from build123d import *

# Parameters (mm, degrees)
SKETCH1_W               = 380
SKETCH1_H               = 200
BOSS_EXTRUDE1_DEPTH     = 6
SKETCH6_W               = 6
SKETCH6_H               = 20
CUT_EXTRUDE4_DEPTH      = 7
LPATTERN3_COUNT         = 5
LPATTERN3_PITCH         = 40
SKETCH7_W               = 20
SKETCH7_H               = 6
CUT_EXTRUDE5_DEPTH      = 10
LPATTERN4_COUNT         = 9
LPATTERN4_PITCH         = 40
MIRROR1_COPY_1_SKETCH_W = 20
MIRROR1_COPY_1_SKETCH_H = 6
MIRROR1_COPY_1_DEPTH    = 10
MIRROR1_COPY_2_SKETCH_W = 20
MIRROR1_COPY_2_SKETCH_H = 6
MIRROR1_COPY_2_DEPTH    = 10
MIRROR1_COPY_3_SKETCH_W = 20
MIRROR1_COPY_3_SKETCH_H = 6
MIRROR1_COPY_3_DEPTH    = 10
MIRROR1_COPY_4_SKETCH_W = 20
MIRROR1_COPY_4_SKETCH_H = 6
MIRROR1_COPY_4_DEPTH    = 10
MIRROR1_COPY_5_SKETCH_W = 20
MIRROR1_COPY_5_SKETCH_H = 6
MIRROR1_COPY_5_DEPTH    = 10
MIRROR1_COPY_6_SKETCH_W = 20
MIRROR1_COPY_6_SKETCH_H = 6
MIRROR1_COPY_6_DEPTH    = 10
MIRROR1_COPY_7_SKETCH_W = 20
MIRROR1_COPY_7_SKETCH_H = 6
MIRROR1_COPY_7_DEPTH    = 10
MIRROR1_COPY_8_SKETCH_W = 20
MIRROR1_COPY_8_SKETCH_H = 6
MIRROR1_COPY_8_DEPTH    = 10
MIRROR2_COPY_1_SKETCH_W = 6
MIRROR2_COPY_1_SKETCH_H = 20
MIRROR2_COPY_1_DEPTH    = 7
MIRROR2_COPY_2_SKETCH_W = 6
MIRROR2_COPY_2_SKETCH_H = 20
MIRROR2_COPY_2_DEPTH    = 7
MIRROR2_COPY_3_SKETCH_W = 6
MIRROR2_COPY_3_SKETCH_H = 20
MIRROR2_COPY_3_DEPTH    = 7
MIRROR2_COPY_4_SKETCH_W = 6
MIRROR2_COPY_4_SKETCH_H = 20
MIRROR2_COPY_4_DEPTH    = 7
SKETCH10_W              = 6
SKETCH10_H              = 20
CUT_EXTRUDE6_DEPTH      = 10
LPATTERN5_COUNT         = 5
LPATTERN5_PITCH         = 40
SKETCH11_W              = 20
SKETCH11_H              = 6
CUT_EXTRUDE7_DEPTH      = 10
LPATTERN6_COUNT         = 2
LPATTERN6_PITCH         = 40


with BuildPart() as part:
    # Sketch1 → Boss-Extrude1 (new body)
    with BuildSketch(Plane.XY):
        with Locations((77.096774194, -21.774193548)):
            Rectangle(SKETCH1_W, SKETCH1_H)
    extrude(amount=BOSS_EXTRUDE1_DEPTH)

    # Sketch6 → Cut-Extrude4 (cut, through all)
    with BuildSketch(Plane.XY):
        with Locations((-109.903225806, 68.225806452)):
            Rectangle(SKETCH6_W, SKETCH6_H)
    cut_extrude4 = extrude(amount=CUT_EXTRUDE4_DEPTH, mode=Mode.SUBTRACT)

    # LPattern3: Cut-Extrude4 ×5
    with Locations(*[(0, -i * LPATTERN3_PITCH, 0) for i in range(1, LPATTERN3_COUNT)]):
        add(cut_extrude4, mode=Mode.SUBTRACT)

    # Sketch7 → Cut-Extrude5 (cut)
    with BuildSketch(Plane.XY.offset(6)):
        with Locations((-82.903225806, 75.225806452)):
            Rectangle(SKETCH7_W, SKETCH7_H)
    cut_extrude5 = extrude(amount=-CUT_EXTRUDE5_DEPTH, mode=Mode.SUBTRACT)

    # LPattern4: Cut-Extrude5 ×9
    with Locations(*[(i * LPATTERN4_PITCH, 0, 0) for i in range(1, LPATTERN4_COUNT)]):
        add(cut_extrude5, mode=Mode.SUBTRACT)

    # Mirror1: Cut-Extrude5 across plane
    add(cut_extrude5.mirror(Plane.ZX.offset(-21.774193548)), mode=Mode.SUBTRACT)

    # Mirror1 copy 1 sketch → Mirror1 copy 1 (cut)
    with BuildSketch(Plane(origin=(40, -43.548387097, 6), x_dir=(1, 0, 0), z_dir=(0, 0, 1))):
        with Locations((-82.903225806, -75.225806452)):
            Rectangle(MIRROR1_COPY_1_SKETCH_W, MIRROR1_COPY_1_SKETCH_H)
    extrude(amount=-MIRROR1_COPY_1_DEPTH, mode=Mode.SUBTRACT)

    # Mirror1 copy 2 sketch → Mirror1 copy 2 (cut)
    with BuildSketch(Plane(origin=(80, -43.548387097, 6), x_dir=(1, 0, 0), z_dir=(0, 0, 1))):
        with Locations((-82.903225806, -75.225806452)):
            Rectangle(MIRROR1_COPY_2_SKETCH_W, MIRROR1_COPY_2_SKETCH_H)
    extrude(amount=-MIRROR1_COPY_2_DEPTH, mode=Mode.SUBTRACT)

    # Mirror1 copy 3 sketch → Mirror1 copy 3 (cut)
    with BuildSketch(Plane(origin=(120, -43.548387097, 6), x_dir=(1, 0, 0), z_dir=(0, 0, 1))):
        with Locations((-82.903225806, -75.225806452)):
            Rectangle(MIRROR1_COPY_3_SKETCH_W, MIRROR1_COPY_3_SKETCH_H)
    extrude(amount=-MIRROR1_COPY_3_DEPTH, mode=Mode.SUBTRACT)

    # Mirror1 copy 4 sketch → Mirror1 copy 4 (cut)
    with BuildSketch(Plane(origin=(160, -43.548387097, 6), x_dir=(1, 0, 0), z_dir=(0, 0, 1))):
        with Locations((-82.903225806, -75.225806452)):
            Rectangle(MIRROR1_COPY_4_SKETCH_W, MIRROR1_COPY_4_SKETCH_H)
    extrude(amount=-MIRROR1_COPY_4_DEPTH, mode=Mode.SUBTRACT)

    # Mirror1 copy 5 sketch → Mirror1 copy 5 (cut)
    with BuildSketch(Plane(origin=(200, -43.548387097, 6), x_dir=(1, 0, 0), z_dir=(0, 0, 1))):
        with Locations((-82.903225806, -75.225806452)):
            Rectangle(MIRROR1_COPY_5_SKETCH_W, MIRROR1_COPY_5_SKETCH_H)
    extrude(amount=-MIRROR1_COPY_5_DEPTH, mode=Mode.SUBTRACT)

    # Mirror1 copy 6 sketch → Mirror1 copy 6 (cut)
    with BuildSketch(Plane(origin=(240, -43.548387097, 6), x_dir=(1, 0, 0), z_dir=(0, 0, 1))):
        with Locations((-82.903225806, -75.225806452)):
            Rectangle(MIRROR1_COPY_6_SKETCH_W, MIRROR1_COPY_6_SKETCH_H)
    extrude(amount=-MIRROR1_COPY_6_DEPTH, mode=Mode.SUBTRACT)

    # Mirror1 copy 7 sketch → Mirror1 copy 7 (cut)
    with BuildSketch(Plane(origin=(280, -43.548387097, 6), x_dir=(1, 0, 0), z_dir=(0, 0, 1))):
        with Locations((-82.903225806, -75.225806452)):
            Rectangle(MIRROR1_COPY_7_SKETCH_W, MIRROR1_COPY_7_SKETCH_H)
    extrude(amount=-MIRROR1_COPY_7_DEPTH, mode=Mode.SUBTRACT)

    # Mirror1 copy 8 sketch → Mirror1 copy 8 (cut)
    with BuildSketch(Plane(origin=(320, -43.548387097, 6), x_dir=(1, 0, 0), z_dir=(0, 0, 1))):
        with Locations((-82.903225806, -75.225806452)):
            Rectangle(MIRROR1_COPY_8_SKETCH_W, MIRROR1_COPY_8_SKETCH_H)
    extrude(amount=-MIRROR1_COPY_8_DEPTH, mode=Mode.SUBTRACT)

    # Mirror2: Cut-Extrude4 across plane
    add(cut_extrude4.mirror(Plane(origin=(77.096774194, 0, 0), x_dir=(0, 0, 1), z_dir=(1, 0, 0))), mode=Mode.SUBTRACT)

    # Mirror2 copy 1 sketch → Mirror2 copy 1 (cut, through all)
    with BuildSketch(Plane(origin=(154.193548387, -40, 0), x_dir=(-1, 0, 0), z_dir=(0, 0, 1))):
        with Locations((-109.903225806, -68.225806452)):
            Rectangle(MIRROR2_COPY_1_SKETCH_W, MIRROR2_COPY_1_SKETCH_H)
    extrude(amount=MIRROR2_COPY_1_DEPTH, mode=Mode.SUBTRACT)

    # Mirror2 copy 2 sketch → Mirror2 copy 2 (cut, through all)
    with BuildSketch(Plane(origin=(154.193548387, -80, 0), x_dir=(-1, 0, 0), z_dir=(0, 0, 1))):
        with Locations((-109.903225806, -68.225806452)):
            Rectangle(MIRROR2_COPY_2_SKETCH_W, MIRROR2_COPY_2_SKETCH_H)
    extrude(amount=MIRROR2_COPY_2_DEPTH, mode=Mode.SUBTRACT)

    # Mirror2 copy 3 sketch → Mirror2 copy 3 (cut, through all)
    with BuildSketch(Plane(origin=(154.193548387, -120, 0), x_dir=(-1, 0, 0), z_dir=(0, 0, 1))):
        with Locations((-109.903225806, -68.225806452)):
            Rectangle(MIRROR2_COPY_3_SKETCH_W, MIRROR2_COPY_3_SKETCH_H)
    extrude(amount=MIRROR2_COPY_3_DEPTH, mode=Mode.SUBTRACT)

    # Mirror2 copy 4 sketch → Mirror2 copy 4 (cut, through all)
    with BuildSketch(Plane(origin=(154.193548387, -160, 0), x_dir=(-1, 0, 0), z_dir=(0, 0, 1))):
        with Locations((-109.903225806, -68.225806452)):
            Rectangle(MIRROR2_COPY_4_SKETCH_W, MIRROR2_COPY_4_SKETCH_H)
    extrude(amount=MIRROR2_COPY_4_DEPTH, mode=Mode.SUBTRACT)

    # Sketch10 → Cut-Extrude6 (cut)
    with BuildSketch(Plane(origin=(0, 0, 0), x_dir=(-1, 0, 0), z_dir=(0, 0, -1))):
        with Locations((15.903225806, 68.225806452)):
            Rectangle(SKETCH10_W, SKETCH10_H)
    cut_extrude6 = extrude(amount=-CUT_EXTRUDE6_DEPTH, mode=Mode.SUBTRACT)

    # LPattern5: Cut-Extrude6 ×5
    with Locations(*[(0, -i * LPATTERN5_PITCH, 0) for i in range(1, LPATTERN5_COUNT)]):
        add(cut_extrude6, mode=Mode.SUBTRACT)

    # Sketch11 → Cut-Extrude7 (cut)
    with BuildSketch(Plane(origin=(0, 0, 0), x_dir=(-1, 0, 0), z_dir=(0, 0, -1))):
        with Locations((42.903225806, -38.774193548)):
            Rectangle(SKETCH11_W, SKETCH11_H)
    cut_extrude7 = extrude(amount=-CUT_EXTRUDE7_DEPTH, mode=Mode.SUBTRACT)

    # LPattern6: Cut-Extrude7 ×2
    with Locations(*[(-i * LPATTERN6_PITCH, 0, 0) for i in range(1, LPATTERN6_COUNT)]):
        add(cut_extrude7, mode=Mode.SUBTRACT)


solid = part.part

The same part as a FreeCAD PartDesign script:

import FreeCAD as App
import Part
import Sketcher


def add_polygon(sketch, points):
    """Adds a closed chain of lines whose ends are joined by coincident constraints."""
    first, n = sketch.GeometryCount, len(points)
    for a, b in zip(points, points[1:] + points[:1]):
        sketch.addGeometry(Part.LineSegment(App.Vector(*a, 0), App.Vector(*b, 0)), False)
    for i in range(n):
        sketch.addConstraint(Sketcher.Constraint("Coincident", first + i, 2, first + (i + 1) % n, 1))

doc = App.newDocument("Part")
body = doc.addObject("PartDesign::Body", "Body")

sketch1 = body.newObject("Sketcher::SketchObject", "Sketch")
sketch1.AttachmentSupport = (doc.getObject("XY_Plane"), [""])
sketch1.MapMode = "FlatFace"
add_polygon(sketch1, [(-112.903226, 78.225806), (-112.903226, -121.774194), (267.096774, -121.774194), (267.096774, 78.225806)])
sketch1.addConstraint(Sketcher.Constraint("Vertical", 0))
sketch1.addConstraint(Sketcher.Constraint("Horizontal", 1))
sketch1.addConstraint(Sketcher.Constraint("Vertical", 2))
sketch1.addConstraint(Sketcher.Constraint("Horizontal", 3))
sketch1.addConstraint(Sketcher.Constraint("DistanceX", 1, 1, 1, 2, 380.0))
sketch1.addConstraint(Sketcher.Constraint("DistanceY", 0, 2, 0, 1, 200.0))
sketch1.addConstraint(Sketcher.Constraint("DistanceX", 0, 2, -1, 1, 112.903226))
sketch1.addConstraint(Sketcher.Constraint("DistanceY", 0, 2, -1, 1, 121.774194))
pad1 = body.newObject("PartDesign::Pad", "Pad")
pad1.Profile = sketch1
pad1.Length = 6

sketch2 = body.newObject("Sketcher::SketchObject", "Sketch001")
sketch2.AttachmentSupport = (doc.getObject("XY_Plane"), [""])
sketch2.MapMode = "FlatFace"
add_polygon(sketch2, [(-112.903226, 78.225806), (-112.903226, 58.225806), (-106.903226, 58.225806), (-106.903226, 78.225806)])
sketch2.addConstraint(Sketcher.Constraint("Vertical", 0))
sketch2.addConstraint(Sketcher.Constraint("Horizontal", 1))
sketch2.addConstraint(Sketcher.Constraint("Vertical", 2))
sketch2.addConstraint(Sketcher.Constraint("Horizontal", 3))
sketch2.addConstraint(Sketcher.Constraint("DistanceX", 1, 1, 1, 2, 6.0))
sketch2.addConstraint(Sketcher.Constraint("DistanceY", 0, 2, 0, 1, 20.0))
sketch2.addConstraint(Sketcher.Constraint("DistanceX", 0, 2, -1, 1, 112.903226))
sketch2.addConstraint(Sketcher.Constraint("DistanceY", -1, 1, 0, 2, 58.225806))
pocket1 = body.newObject("PartDesign::Pocket", "Pocket")
pocket1.Profile = sketch2
pocket1.Type = "ThroughAll"
pocket1.Reversed = True
doc.recompute()

linearpattern = body.newObject("PartDesign::LinearPattern", "LinearPattern")
linearpattern.Originals = [pocket1]
linearpattern.Direction = (doc.getObject("Y_Axis"), [""])
linearpattern.Mode = "offset"
linearpattern.Offset = 40
linearpattern.Occurrences = 5
linearpattern.Reversed = True
body.Tip = linearpattern

sketch3 = body.newObject("Sketcher::SketchObject", "Sketch002")
sketch3.AttachmentSupport = (doc.getObject("XY_Plane"), [""])
sketch3.MapMode = "FlatFace"
sketch3.AttachmentOffset = App.Placement(App.Vector(0, 0, 6), App.Rotation())
add_polygon(sketch3, [(-92.903226, 78.225806), (-92.903226, 72.225806), (-72.903226, 72.225806), (-72.903226, 78.225806)])
sketch3.addConstraint(Sketcher.Constraint("Vertical", 0))
sketch3.addConstraint(Sketcher.Constraint("Horizontal", 1))
sketch3.addConstraint(Sketcher.Constraint("Vertical", 2))
sketch3.addConstraint(Sketcher.Constraint("Horizontal", 3))
sketch3.addConstraint(Sketcher.Constraint("DistanceX", 1, 1, 1, 2, 20.0))
sketch3.addConstraint(Sketcher.Constraint("DistanceY", 0, 2, 0, 1, 6.0))
sketch3.addConstraint(Sketcher.Constraint("DistanceX", 0, 2, -1, 1, 92.903226))
sketch3.addConstraint(Sketcher.Constraint("DistanceY", -1, 1, 0, 2, 72.225806))
pocket2 = body.newObject("PartDesign::Pocket", "Pocket001")
pocket2.Profile = sketch3
pocket2.Length = 10
doc.recompute()

linearpattern2 = body.newObject("PartDesign::LinearPattern", "LinearPattern001")
linearpattern2.Originals = [pocket2]
linearpattern2.Direction = (doc.getObject("X_Axis"), [""])
linearpattern2.Mode = "offset"
linearpattern2.Offset = 40
linearpattern2.Occurrences = 9
body.Tip = linearpattern2
doc.recompute()

datumplane = body.newObject("PartDesign::Plane", "DatumPlane")
datumplane.AttachmentSupport = (doc.getObject("XZ_Plane"), [""])
datumplane.MapMode = "FlatFace"
datumplane.AttachmentOffset = App.Placement(App.Vector(0, 0, 21.774194), App.Rotation())
mirrored = body.newObject("PartDesign::Mirrored", "Mirrored")
mirrored.Originals = [pocket2]
mirrored.MirrorPlane = (datumplane, [""])
body.Tip = mirrored

sketch4 = body.newObject("Sketcher::SketchObject", "Sketch003")
sketch4.AttachmentSupport = (doc.getObject("XY_Plane"), [""])
sketch4.MapMode = "FlatFace"
sketch4.AttachmentOffset = App.Placement(App.Vector(0, 0, 6), App.Rotation())
add_polygon(sketch4, [(-52.903226, -115.774194), (-52.903226, -121.774194), (-32.903226, -121.774194), (-32.903226, -115.774194)])
sketch4.addConstraint(Sketcher.Constraint("Vertical", 0))
sketch4.addConstraint(Sketcher.Constraint("Horizontal", 1))
sketch4.addConstraint(Sketcher.Constraint("Vertical", 2))
sketch4.addConstraint(Sketcher.Constraint("Horizontal", 3))
sketch4.addConstraint(Sketcher.Constraint("DistanceX", 1, 1, 1, 2, 20.0))
sketch4.addConstraint(Sketcher.Constraint("DistanceY", 0, 2, 0, 1, 6.0))
sketch4.addConstraint(Sketcher.Constraint("DistanceX", 0, 2, -1, 1, 52.903226))
sketch4.addConstraint(Sketcher.Constraint("DistanceY", 0, 2, -1, 1, 121.774194))
pocket3 = body.newObject("PartDesign::Pocket", "Pocket002")
pocket3.Profile = sketch4
pocket3.Length = 10

sketch5 = body.newObject("Sketcher::SketchObject", "Sketch004")
sketch5.AttachmentSupport = (doc.getObject("XY_Plane"), [""])
sketch5.MapMode = "FlatFace"
sketch5.AttachmentOffset = App.Placement(App.Vector(0, 0, 6), App.Rotation())
add_polygon(sketch5, [(-12.903226, -115.774194), (-12.903226, -121.774194), (7.096774, -121.774194), (7.096774, -115.774194)])
sketch5.addConstraint(Sketcher.Constraint("Vertical", 0))
sketch5.addConstraint(Sketcher.Constraint("Horizontal", 1))
sketch5.addConstraint(Sketcher.Constraint("Vertical", 2))
sketch5.addConstraint(Sketcher.Constraint("Horizontal", 3))
sketch5.addConstraint(Sketcher.Constraint("DistanceX", 1, 1, 1, 2, 20.0))
sketch5.addConstraint(Sketcher.Constraint("DistanceY", 0, 2, 0, 1, 6.0))
sketch5.addConstraint(Sketcher.Constraint("DistanceX", 0, 2, -1, 1, 12.903226))
sketch5.addConstraint(Sketcher.Constraint("DistanceY", 0, 2, -1, 1, 121.774194))
pocket4 = body.newObject("PartDesign::Pocket", "Pocket003")
pocket4.Profile = sketch5
pocket4.Length = 10

sketch6 = body.newObject("Sketcher::SketchObject", "Sketch005")
sketch6.AttachmentSupport = (doc.getObject("XY_Plane"), [""])
sketch6.MapMode = "FlatFace"
sketch6.AttachmentOffset = App.Placement(App.Vector(0, 0, 6), App.Rotation())
add_polygon(sketch6, [(27.096774, -115.774194), (27.096774, -121.774194), (47.096774, -121.774194), (47.096774, -115.774194)])
sketch6.addConstraint(Sketcher.Constraint("Vertical", 0))
sketch6.addConstraint(Sketcher.Constraint("Horizontal", 1))
sketch6.addConstraint(Sketcher.Constraint("Vertical", 2))
sketch6.addConstraint(Sketcher.Constraint("Horizontal", 3))
sketch6.addConstraint(Sketcher.Constraint("DistanceX", 1, 1, 1, 2, 20.0))
sketch6.addConstraint(Sketcher.Constraint("DistanceY", 0, 2, 0, 1, 6.0))
sketch6.addConstraint(Sketcher.Constraint("DistanceX", -1, 1, 0, 2, 27.096774))
sketch6.addConstraint(Sketcher.Constraint("DistanceY", 0, 2, -1, 1, 121.774194))
pocket5 = body.newObject("PartDesign::Pocket", "Pocket004")
pocket5.Profile = sketch6
pocket5.Length = 10

sketch7 = body.newObject("Sketcher::SketchObject", "Sketch006")
sketch7.AttachmentSupport = (doc.getObject("XY_Plane"), [""])
sketch7.MapMode = "FlatFace"
sketch7.AttachmentOffset = App.Placement(App.Vector(0, 0, 6), App.Rotation())
add_polygon(sketch7, [(67.096774, -115.774194), (67.096774, -121.774194), (87.096774, -121.774194), (87.096774, -115.774194)])
sketch7.addConstraint(Sketcher.Constraint("Vertical", 0))
sketch7.addConstraint(Sketcher.Constraint("Horizontal", 1))
sketch7.addConstraint(Sketcher.Constraint("Vertical", 2))
sketch7.addConstraint(Sketcher.Constraint("Horizontal", 3))
sketch7.addConstraint(Sketcher.Constraint("DistanceX", 1, 1, 1, 2, 20.0))
sketch7.addConstraint(Sketcher.Constraint("DistanceY", 0, 2, 0, 1, 6.0))
sketch7.addConstraint(Sketcher.Constraint("DistanceX", -1, 1, 0, 2, 67.096774))
sketch7.addConstraint(Sketcher.Constraint("DistanceY", 0, 2, -1, 1, 121.774194))
pocket6 = body.newObject("PartDesign::Pocket", "Pocket005")
pocket6.Profile = sketch7
pocket6.Length = 10

sketch8 = body.newObject("Sketcher::SketchObject", "Sketch007")
sketch8.AttachmentSupport = (doc.getObject("XY_Plane"), [""])
sketch8.MapMode = "FlatFace"
sketch8.AttachmentOffset = App.Placement(App.Vector(0, 0, 6), App.Rotation())
add_polygon(sketch8, [(107.096774, -115.774194), (107.096774, -121.774194), (127.096774, -121.774194), (127.096774, -115.774194)])
sketch8.addConstraint(Sketcher.Constraint("Vertical", 0))
sketch8.addConstraint(Sketcher.Constraint("Horizontal", 1))
sketch8.addConstraint(Sketcher.Constraint("Vertical", 2))
sketch8.addConstraint(Sketcher.Constraint("Horizontal", 3))
sketch8.addConstraint(Sketcher.Constraint("DistanceX", 1, 1, 1, 2, 20.0))
sketch8.addConstraint(Sketcher.Constraint("DistanceY", 0, 2, 0, 1, 6.0))
sketch8.addConstraint(Sketcher.Constraint("DistanceX", -1, 1, 0, 2, 107.096774))
sketch8.addConstraint(Sketcher.Constraint("DistanceY", 0, 2, -1, 1, 121.774194))
pocket7 = body.newObject("PartDesign::Pocket", "Pocket006")
pocket7.Profile = sketch8
pocket7.Length = 10

sketch9 = body.newObject("Sketcher::SketchObject", "Sketch008")
sketch9.AttachmentSupport = (doc.getObject("XY_Plane"), [""])
sketch9.MapMode = "FlatFace"
sketch9.AttachmentOffset = App.Placement(App.Vector(0, 0, 6), App.Rotation())
add_polygon(sketch9, [(147.096774, -115.774194), (147.096774, -121.774194), (167.096774, -121.774194), (167.096774, -115.774194)])
sketch9.addConstraint(Sketcher.Constraint("Vertical", 0))
sketch9.addConstraint(Sketcher.Constraint("Horizontal", 1))
sketch9.addConstraint(Sketcher.Constraint("Vertical", 2))
sketch9.addConstraint(Sketcher.Constraint("Horizontal", 3))
sketch9.addConstraint(Sketcher.Constraint("DistanceX", 1, 1, 1, 2, 20.0))
sketch9.addConstraint(Sketcher.Constraint("DistanceY", 0, 2, 0, 1, 6.0))
sketch9.addConstraint(Sketcher.Constraint("DistanceX", -1, 1, 0, 2, 147.096774))
sketch9.addConstraint(Sketcher.Constraint("DistanceY", 0, 2, -1, 1, 121.774194))
pocket8 = body.newObject("PartDesign::Pocket", "Pocket007")
pocket8.Profile = sketch9
pocket8.Length = 10

sketch10 = body.newObject("Sketcher::SketchObject", "Sketch009")
sketch10.AttachmentSupport = (doc.getObject("XY_Plane"), [""])
sketch10.MapMode = "FlatFace"
sketch10.AttachmentOffset = App.Placement(App.Vector(0, 0, 6), App.Rotation())
add_polygon(sketch10, [(187.096774, -115.774194), (187.096774, -121.774194), (207.096774, -121.774194), (207.096774, -115.774194)])
sketch10.addConstraint(Sketcher.Constraint("Vertical", 0))
sketch10.addConstraint(Sketcher.Constraint("Horizontal", 1))
sketch10.addConstraint(Sketcher.Constraint("Vertical", 2))
sketch10.addConstraint(Sketcher.Constraint("Horizontal", 3))
sketch10.addConstraint(Sketcher.Constraint("DistanceX", 1, 1, 1, 2, 20.0))
sketch10.addConstraint(Sketcher.Constraint("DistanceY", 0, 2, 0, 1, 6.0))
sketch10.addConstraint(Sketcher.Constraint("DistanceX", -1, 1, 0, 2, 187.096774))
sketch10.addConstraint(Sketcher.Constraint("DistanceY", 0, 2, -1, 1, 121.774194))
pocket9 = body.newObject("PartDesign::Pocket", "Pocket008")
pocket9.Profile = sketch10
pocket9.Length = 10

sketch11 = body.newObject("Sketcher::SketchObject", "Sketch010")
sketch11.AttachmentSupport = (doc.getObject("XY_Plane"), [""])
sketch11.MapMode = "FlatFace"
sketch11.AttachmentOffset = App.Placement(App.Vector(0, 0, 6), App.Rotation())
add_polygon(sketch11, [(227.096774, -115.774194), (227.096774, -121.774194), (247.096774, -121.774194), (247.096774, -115.774194)])
sketch11.addConstraint(Sketcher.Constraint("Vertical", 0))
sketch11.addConstraint(Sketcher.Constraint("Horizontal", 1))
sketch11.addConstraint(Sketcher.Constraint("Vertical", 2))
sketch11.addConstraint(Sketcher.Constraint("Horizontal", 3))
sketch11.addConstraint(Sketcher.Constraint("DistanceX", 1, 1, 1, 2, 20.0))
sketch11.addConstraint(Sketcher.Constraint("DistanceY", 0, 2, 0, 1, 6.0))
sketch11.addConstraint(Sketcher.Constraint("DistanceX", -1, 1, 0, 2, 227.096774))
sketch11.addConstraint(Sketcher.Constraint("DistanceY", 0, 2, -1, 1, 121.774194))
pocket10 = body.newObject("PartDesign::Pocket", "Pocket009")
pocket10.Profile = sketch11
pocket10.Length = 10
doc.recompute()

datumplane2 = body.newObject("PartDesign::Plane", "DatumPlane001")
datumplane2.AttachmentSupport = (doc.getObject("YZ_Plane"), [""])
datumplane2.MapMode = "FlatFace"
datumplane2.AttachmentOffset = App.Placement(App.Vector(0, 0, 77.096774), App.Rotation())
mirrored2 = body.newObject("PartDesign::Mirrored", "Mirrored001")
mirrored2.Originals = [pocket1]
mirrored2.MirrorPlane = (datumplane2, [""])
body.Tip = mirrored2

sketch12 = body.newObject("Sketcher::SketchObject", "Sketch011")
sketch12.AttachmentSupport = (doc.getObject("XY_Plane"), [""])
sketch12.MapMode = "FlatFace"
add_polygon(sketch12, [(267.096774, 18.225806), (267.096774, 38.225806), (261.096774, 38.225806), (261.096774, 18.225806)])
sketch12.addConstraint(Sketcher.Constraint("Vertical", 0))
sketch12.addConstraint(Sketcher.Constraint("Horizontal", 1))
sketch12.addConstraint(Sketcher.Constraint("Vertical", 2))
sketch12.addConstraint(Sketcher.Constraint("Horizontal", 3))
sketch12.addConstraint(Sketcher.Constraint("DistanceX", 1, 2, 1, 1, 6.0))
sketch12.addConstraint(Sketcher.Constraint("DistanceY", 0, 1, 0, 2, 20.0))
sketch12.addConstraint(Sketcher.Constraint("DistanceX", -1, 1, 0, 2, 267.096774))
sketch12.addConstraint(Sketcher.Constraint("DistanceY", -1, 1, 0, 2, 38.225806))
pocket11 = body.newObject("PartDesign::Pocket", "Pocket010")
pocket11.Profile = sketch12
pocket11.Type = "ThroughAll"
pocket11.Reversed = True

sketch13 = body.newObject("Sketcher::SketchObject", "Sketch012")
sketch13.AttachmentSupport = (doc.getObject("XY_Plane"), [""])
sketch13.MapMode = "FlatFace"
add_polygon(sketch13, [(267.096774, -21.774194), (267.096774, -1.774194), (261.096774, -1.774194), (261.096774, -21.774194)])
sketch13.addConstraint(Sketcher.Constraint("Vertical", 0))
sketch13.addConstraint(Sketcher.Constraint("Horizontal", 1))
sketch13.addConstraint(Sketcher.Constraint("Vertical", 2))
sketch13.addConstraint(Sketcher.Constraint("Horizontal", 3))
sketch13.addConstraint(Sketcher.Constraint("DistanceX", 1, 2, 1, 1, 6.0))
sketch13.addConstraint(Sketcher.Constraint("DistanceY", 0, 1, 0, 2, 20.0))
sketch13.addConstraint(Sketcher.Constraint("DistanceX", -1, 1, 0, 2, 267.096774))
sketch13.addConstraint(Sketcher.Constraint("DistanceY", 0, 2, -1, 1, 1.774194))
pocket12 = body.newObject("PartDesign::Pocket", "Pocket011")
pocket12.Profile = sketch13
pocket12.Type = "ThroughAll"
pocket12.Reversed = True

sketch14 = body.newObject("Sketcher::SketchObject", "Sketch013")
sketch14.AttachmentSupport = (doc.getObject("XY_Plane"), [""])
sketch14.MapMode = "FlatFace"
add_polygon(sketch14, [(267.096774, -61.774194), (267.096774, -41.774194), (261.096774, -41.774194), (261.096774, -61.774194)])
sketch14.addConstraint(Sketcher.Constraint("Vertical", 0))
sketch14.addConstraint(Sketcher.Constraint("Horizontal", 1))
sketch14.addConstraint(Sketcher.Constraint("Vertical", 2))
sketch14.addConstraint(Sketcher.Constraint("Horizontal", 3))
sketch14.addConstraint(Sketcher.Constraint("DistanceX", 1, 2, 1, 1, 6.0))
sketch14.addConstraint(Sketcher.Constraint("DistanceY", 0, 1, 0, 2, 20.0))
sketch14.addConstraint(Sketcher.Constraint("DistanceX", -1, 1, 0, 2, 267.096774))
sketch14.addConstraint(Sketcher.Constraint("DistanceY", 0, 2, -1, 1, 41.774194))
pocket13 = body.newObject("PartDesign::Pocket", "Pocket012")
pocket13.Profile = sketch14
pocket13.Type = "ThroughAll"
pocket13.Reversed = True

sketch15 = body.newObject("Sketcher::SketchObject", "Sketch014")
sketch15.AttachmentSupport = (doc.getObject("XY_Plane"), [""])
sketch15.MapMode = "FlatFace"
add_polygon(sketch15, [(267.096774, -101.774194), (267.096774, -81.774194), (261.096774, -81.774194), (261.096774, -101.774194)])
sketch15.addConstraint(Sketcher.Constraint("Vertical", 0))
sketch15.addConstraint(Sketcher.Constraint("Horizontal", 1))
sketch15.addConstraint(Sketcher.Constraint("Vertical", 2))
sketch15.addConstraint(Sketcher.Constraint("Horizontal", 3))
sketch15.addConstraint(Sketcher.Constraint("DistanceX", 1, 2, 1, 1, 6.0))
sketch15.addConstraint(Sketcher.Constraint("DistanceY", 0, 1, 0, 2, 20.0))
sketch15.addConstraint(Sketcher.Constraint("DistanceX", -1, 1, 0, 2, 267.096774))
sketch15.addConstraint(Sketcher.Constraint("DistanceY", 0, 2, -1, 1, 81.774194))
pocket14 = body.newObject("PartDesign::Pocket", "Pocket013")
pocket14.Profile = sketch15
pocket14.Type = "ThroughAll"
pocket14.Reversed = True

sketch16 = body.newObject("Sketcher::SketchObject", "Sketch015")
sketch16.AttachmentSupport = (doc.getObject("XY_Plane"), [""])
sketch16.MapMode = "FlatFace"
add_polygon(sketch16, [(-12.903226, 78.225806), (-12.903226, 58.225806), (-18.903226, 58.225806), (-18.903226, 78.225806)])
sketch16.addConstraint(Sketcher.Constraint("Vertical", 0))
sketch16.addConstraint(Sketcher.Constraint("Horizontal", 1))
sketch16.addConstraint(Sketcher.Constraint("Vertical", 2))
sketch16.addConstraint(Sketcher.Constraint("Horizontal", 3))
sketch16.addConstraint(Sketcher.Constraint("DistanceX", 1, 2, 1, 1, 6.0))
sketch16.addConstraint(Sketcher.Constraint("DistanceY", 0, 2, 0, 1, 20.0))
sketch16.addConstraint(Sketcher.Constraint("DistanceX", 0, 2, -1, 1, 12.903226))
sketch16.addConstraint(Sketcher.Constraint("DistanceY", -1, 1, 0, 2, 58.225806))
pocket15 = body.newObject("PartDesign::Pocket", "Pocket014")
pocket15.Profile = sketch16
pocket15.Length = 10
pocket15.Reversed = True
doc.recompute()

linearpattern3 = body.newObject("PartDesign::LinearPattern", "LinearPattern002")
linearpattern3.Originals = [pocket15]
linearpattern3.Direction = (doc.getObject("Y_Axis"), [""])
linearpattern3.Mode = "offset"
linearpattern3.Offset = 40
linearpattern3.Occurrences = 5
linearpattern3.Reversed = True
body.Tip = linearpattern3

sketch17 = body.newObject("Sketcher::SketchObject", "Sketch016")
sketch17.AttachmentSupport = (doc.getObject("XY_Plane"), [""])
sketch17.MapMode = "FlatFace"
add_polygon(sketch17, [(-32.903226, -35.774194), (-32.903226, -41.774194), (-52.903226, -41.774194), (-52.903226, -35.774194)])
sketch17.addConstraint(Sketcher.Constraint("Vertical", 0))
sketch17.addConstraint(Sketcher.Constraint("Horizontal", 1))
sketch17.addConstraint(Sketcher.Constraint("Vertical", 2))
sketch17.addConstraint(Sketcher.Constraint("Horizontal", 3))
sketch17.addConstraint(Sketcher.Constraint("DistanceX", 1, 2, 1, 1, 20.0))
sketch17.addConstraint(Sketcher.Constraint("DistanceY", 0, 2, 0, 1, 6.0))
sketch17.addConstraint(Sketcher.Constraint("DistanceX", 0, 2, -1, 1, 32.903226))
sketch17.addConstraint(Sketcher.Constraint("DistanceY", 0, 2, -1, 1, 41.774194))
pocket16 = body.newObject("PartDesign::Pocket", "Pocket015")
pocket16.Profile = sketch17
pocket16.Length = 10
pocket16.Reversed = True
doc.recompute()

linearpattern4 = body.newObject("PartDesign::LinearPattern", "LinearPattern003")
linearpattern4.Originals = [pocket16]
linearpattern4.Direction = (doc.getObject("X_Axis"), [""])
linearpattern4.Mode = "offset"
linearpattern4.Offset = 40
linearpattern4.Occurrences = 2
linearpattern4.Reversed = True
body.Tip = linearpattern4

doc.recompute()
